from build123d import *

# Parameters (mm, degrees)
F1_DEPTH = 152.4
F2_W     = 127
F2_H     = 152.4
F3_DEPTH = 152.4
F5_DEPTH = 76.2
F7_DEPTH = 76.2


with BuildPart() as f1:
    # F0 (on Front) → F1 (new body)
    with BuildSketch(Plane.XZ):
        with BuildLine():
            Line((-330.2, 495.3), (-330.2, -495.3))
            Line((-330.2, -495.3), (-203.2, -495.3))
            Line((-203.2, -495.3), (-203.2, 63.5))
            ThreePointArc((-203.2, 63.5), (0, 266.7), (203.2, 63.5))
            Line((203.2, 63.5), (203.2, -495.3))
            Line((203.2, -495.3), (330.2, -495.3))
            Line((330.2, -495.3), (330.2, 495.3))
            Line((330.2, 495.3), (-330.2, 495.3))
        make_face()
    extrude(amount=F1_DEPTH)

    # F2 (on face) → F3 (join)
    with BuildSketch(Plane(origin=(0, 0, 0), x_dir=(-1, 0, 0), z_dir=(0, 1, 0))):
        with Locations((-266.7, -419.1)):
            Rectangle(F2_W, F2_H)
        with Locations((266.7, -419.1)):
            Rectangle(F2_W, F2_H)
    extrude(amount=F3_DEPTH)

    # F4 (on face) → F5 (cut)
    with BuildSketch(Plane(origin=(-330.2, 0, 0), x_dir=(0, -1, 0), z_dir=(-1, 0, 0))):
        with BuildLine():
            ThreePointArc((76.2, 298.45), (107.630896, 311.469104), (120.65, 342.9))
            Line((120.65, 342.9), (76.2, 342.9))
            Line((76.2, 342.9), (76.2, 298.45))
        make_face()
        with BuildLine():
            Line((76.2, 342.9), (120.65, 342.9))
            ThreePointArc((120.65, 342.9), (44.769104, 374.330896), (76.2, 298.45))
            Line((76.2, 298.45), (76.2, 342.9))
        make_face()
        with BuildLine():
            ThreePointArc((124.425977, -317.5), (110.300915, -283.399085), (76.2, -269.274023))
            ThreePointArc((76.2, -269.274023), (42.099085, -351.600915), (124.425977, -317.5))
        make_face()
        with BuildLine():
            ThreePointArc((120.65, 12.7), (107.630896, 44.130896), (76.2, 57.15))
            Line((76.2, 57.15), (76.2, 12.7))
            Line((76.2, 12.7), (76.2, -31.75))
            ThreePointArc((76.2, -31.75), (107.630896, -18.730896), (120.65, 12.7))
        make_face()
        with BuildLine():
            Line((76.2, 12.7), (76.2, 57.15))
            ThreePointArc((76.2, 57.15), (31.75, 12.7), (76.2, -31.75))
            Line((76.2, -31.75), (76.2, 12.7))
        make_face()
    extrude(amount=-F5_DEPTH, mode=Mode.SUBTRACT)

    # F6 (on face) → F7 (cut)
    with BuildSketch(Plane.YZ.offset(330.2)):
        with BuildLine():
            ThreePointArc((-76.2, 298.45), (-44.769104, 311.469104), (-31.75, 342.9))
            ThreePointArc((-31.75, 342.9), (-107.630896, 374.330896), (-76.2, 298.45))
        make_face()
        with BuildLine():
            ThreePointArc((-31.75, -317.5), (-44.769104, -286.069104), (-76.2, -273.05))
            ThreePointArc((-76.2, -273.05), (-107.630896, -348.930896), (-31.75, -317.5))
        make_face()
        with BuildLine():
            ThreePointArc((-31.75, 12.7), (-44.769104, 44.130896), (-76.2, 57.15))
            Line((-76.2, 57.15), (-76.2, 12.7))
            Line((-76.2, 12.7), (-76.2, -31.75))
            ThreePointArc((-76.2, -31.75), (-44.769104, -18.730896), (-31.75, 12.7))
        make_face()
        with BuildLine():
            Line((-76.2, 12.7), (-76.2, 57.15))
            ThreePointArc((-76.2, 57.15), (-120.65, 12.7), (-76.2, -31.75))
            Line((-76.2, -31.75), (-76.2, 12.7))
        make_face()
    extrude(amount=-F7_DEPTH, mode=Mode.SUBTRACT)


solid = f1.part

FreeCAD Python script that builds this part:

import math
import FreeCAD as App
import Part
import Sketcher

V = App.Vector
Q = App.Units.Quantity

doc = App.newDocument("Part")
body = doc.addObject("PartDesign::Body", "Body")

sketch1 = doc.addObject("Sketcher::SketchObject", "Sketch")
body.addObject(sketch1)
sketch1.AttachmentSupport = (doc.XZ_Plane, [""])
sketch1.MapMode = "FlatFace"
sketch1.addGeometry(Part.LineSegment(V(-330, 495, 0), V(-330, -495, 0)), False)
sketch1.addGeometry(Part.LineSegment(V(-330, -495, 0), V(-203, -495, 0)), False)
sketch1.addGeometry(Part.LineSegment(V(-203, -495, 0), V(-203, 64, 0)), False)
sketch1.addGeometry(Part.ArcOfCircle(Part.Circle(V(0, 64, 0), V(0, 0, 1), 203), math.radians(0), math.radians(180)), False)
sketch1.addGeometry(Part.LineSegment(V(203, 64, 0), V(203, -495, 0)), False)
sketch1.addGeometry(Part.LineSegment(V(203, -495, 0), V(330, -495, 0)), False)
sketch1.addGeometry(Part.LineSegment(V(330, -495, 0), V(330, 495, 0)), False)
sketch1.addGeometry(Part.LineSegment(V(330, 495, 0), V(-330, 495, 0)), False)
sketch1.addConstraint(Sketcher.Constraint("Coincident", 0, 2, 1, 1))
sketch1.addConstraint(Sketcher.Constraint("Coincident", 1, 2, 2, 1))
sketch1.addConstraint(Sketcher.Constraint("Tangent", 2, 2, 3, 2))
sketch1.addConstraint(Sketcher.Constraint("Tangent", 3, 1, 4, 1))
sketch1.addConstraint(Sketcher.Constraint("Coincident", 4, 2, 5, 1))
sketch1.addConstraint(Sketcher.Constraint("Coincident", 5, 2, 6, 1))
sketch1.addConstraint(Sketcher.Constraint("Coincident", 6, 2, 7, 1))
sketch1.addConstraint(Sketcher.Constraint("Coincident", 7, 2, 0, 1))
sketch1.addConstraint(Sketcher.Constraint("Vertical", 0))
sketch1.addConstraint(Sketcher.Constraint("Horizontal", 1))
sketch1.addConstraint(Sketcher.Constraint("Vertical", 2))
sketch1.addConstraint(Sketcher.Constraint("Vertical", 4))
sketch1.addConstraint(Sketcher.Constraint("Horizontal", 5))
sketch1.addConstraint(Sketcher.Constraint("Vertical", 6))
sketch1.addConstraint(Sketcher.Constraint("Horizontal", 7))
sketch1.addConstraint(Sketcher.Constraint("Symmetric", 0, 2, 6, 2, -1, 1))
sketch1.addConstraint(Sketcher.Constraint("Symmetric", 1, 2, 4, 2, -2))
sketch1.addConstraint(Sketcher.Constraint("Radius", 3, Q("8 in")))
sketch1.addConstraint(Sketcher.Constraint("DistanceX", 1, 1, 1, 2, Q("5 in")))
sketch1.addConstraint(Sketcher.Constraint("DistanceY", 0, 2, 0, 1, Q("39 in")))
sketch1.addConstraint(Sketcher.Constraint("DistanceY", 2, 1, 2, 2, Q("22 in")))
pad1 = doc.addObject("PartDesign::Pad", "Pad")
body.addObject(pad1)
pad1.Profile = sketch1
pad1.Length = Q("6 in")

sketch2 = doc.addObject("Sketcher::SketchObject", "Sketch001")
body.addObject(sketch2)
sketch2.AttachmentSupport = (doc.XZ_Plane, [""])
sketch2.MapMode = "FlatFace"
sketch2.addGeometry(Part.LineSegment(V(330, -343, 0), V(330, -495, 0)), False)
sketch2.addGeometry(Part.LineSegment(V(330, -495, 0), V(203, -495, 0)), False)
sketch2.addGeometry(Part.LineSegment(V(203, -495, 0), V(203, -343, 0)), False)
sketch2.addGeometry(Part.LineSegment(V(203, -343, 0), V(330, -343, 0)), False)
sketch2.addGeometry(Part.LineSegment(V(-203, -343, 0), V(-203, -495, 0)), False)
sketch2.addGeometry(Part.LineSegment(V(-203, -495, 0), V(-330, -495, 0)), False)
sketch2.addGeometry(Part.LineSegment(V(-330, -495, 0), V(-330, -343, 0)), False)
sketch2.addGeometry(Part.LineSegment(V(-330, -343, 0), V(-203, -343, 0)), False)
sketch2.addConstraint(Sketcher.Constraint("Coincident", 0, 2, 1, 1))
sketch2.addConstraint(Sketcher.Constraint("Coincident", 1, 2, 2, 1))
sketch2.addConstraint(Sketcher.Constraint("Coincident", 2, 2, 3, 1))
sketch2.addConstraint(Sketcher.Constraint("Coincident", 3, 2, 0, 1))
sketch2.addConstraint(Sketcher.Constraint("Coincident", 4, 2, 5, 1))
sketch2.addConstraint(Sketcher.Constraint("Coincident", 5, 2, 6, 1))
sketch2.addConstraint(Sketcher.Constraint("Coincident", 6, 2, 7, 1))
sketch2.addConstraint(Sketcher.Constraint("Coincident", 7, 2, 4, 1))
sketch2.addConstraint(Sketcher.Constraint("Vertical", 0))
sketch2.addConstraint(Sketcher.Constraint("Horizontal", 1))
sketch2.addConstraint(Sketcher.Constraint("Vertical", 2))
sketch2.addConstraint(Sketcher.Constraint("Horizontal", 3))
sketch2.addConstraint(Sketcher.Constraint("Vertical", 4))
sketch2.addConstraint(Sketcher.Constraint("Horizontal", 5))
sketch2.addConstraint(Sketcher.Constraint("Vertical", 6))
sketch2.addConstraint(Sketcher.Constraint("Horizontal", 7))
sketch2.addConstraint(Sketcher.Constraint("Symmetric", 1, 2, 4, 2, -2))
sketch2.addConstraint(Sketcher.Constraint("Symmetric", 3, 2, 6, 2, -2))
sketch2.addConstraint(Sketcher.Constraint("DistanceX", 1, 2, 1, 1, Q("5 in")))
sketch2.addConstraint(Sketcher.Constraint("DistanceY", 0, 2, 0, 1, Q("6 in")))
sketch2.addConstraint(Sketcher.Constraint("DistanceX", -1, 1, 0, 2, Q("13 in")))
sketch2.addConstraint(Sketcher.Constraint("DistanceY", 0, 2, -1, 1, Q("19.5 in")))
pad2 = doc.addObject("PartDesign::Pad", "Pad001")
body.addObject(pad2)
pad2.Profile = sketch2
pad2.Length = Q("6 in")
pad2.Reversed = True

sketch3 = doc.addObject("Sketcher::SketchObject", "Sketch002")
body.addObject(sketch3)
sketch3.AttachmentSupport = (doc.YZ_Plane, [""])
sketch3.MapMode = "FlatFace"
sketch3.AttachmentOffset = App.Placement(V(0, 0, -13 * 25.4), App.Rotation())
sketch3.addGeometry(Part.ArcOfCircle(Part.Circle(V(-76, 343, 0), V(0, 0, 1), 44), math.radians(-180), math.radians(-90)), False)
sketch3.addGeometry(Part.ArcOfCircle(Part.Circle(V(-76, 343, 0), V(0, 0, 1), 44), math.radians(-90), math.radians(180)), False)
sketch3.addGeometry(Part.ArcOfCircle(Part.Circle(V(-76, -318, 0), V(0, 0, 1), 48), math.radians(90), math.radians(180)), False)
sketch3.addGeometry(Part.ArcOfCircle(Part.Circle(V(-76, -317, 0), V(0, 0, 1), 48), math.radians(-180), math.radians(90)), False)
sketch3.addGeometry(Part.ArcOfCircle(Part.Circle(V(-76, 13, 0), V(0, 0, 1), 44), math.radians(90), math.radians(180)), False)
sketch3.addGeometry(Part.ArcOfCircle(Part.Circle(V(-76, 13, 0), V(0, 0, 1), 44), math.radians(-90), math.radians(90)), False)
sketch3.addGeometry(Part.ArcOfCircle(Part.Circle(V(-76, 13, 0), V(0, 0, 1), 44), math.radians(-180), math.radians(-90)), False)
sketch3.addConstraint(Sketcher.Constraint("Tangent", 0, 1, 1, 2))
sketch3.addConstraint(Sketcher.Constraint("Coincident", 1, 1, 0, 2))
sketch3.addConstraint(Sketcher.Constraint("Tangent", 2, 1, 3, 2))
sketch3.addConstraint(Sketcher.Constraint("Coincident", 3, 1, 2, 2))
sketch3.addConstraint(Sketcher.Constraint("Tangent", 4, 1, 5, 2))
sketch3.addConstraint(Sketcher.Constraint("Tangent", 5, 1, 6, 2))
sketch3.addConstraint(Sketcher.Constraint("Tangent", 6, 1, 4, 2))
sketch3.addConstraint(Sketcher.Constraint("Equal", 1, 4))
sketch3.addConstraint(Sketcher.Constraint("Horizontal", 1, 3, 0, 1))
sketch3.addConstraint(Sketcher.Constraint("Horizontal", 2, 3, 3, 1))
sketch3.addConstraint(Sketcher.Constraint("Horizontal", 5, 3, 6, 1))
sketch3.addConstraint(Sketcher.Constraint("Vertical", 1, 3, 2, 3))
sketch3.addConstraint(Sketcher.Constraint("Vertical", 3, 3, 4, 3))
sketch3.addConstraint(Sketcher.Constraint("Vertical", 6, 3, 1, 1))
sketch3.addConstraint(Sketcher.Constraint("Vertical", 1, 1, 2, 1))
sketch3.addConstraint(Sketcher.Constraint("Vertical", 2, 1, 4, 1))
sketch3.addConstraint(Sketcher.Constraint("Vertical", 4, 1, 5, 1))
sketch3.addConstraint(Sketcher.Constraint("Radius", 0, Q("1.7500001 in")))
sketch3.addConstraint(Sketcher.Constraint("DistanceX", 0, 3, -1, 1, Q("2.9999999 in")))
sketch3.addConstraint(Sketcher.Constraint("DistanceY", 2, 3, 1, 3, Q("26 in")))
sketch3.addConstraint(Sketcher.Constraint("DistanceY", 3, 3, 4, 3, Q("12.9999999 in")))
sketch3.addConstraint(Sketcher.Constraint("DistanceY", -1, 1, 0, 3, Q("13.5000001 in")))
sketch3.addConstraint(Sketcher.Constraint("Radius", 2, Q("48.225978 mm")))
pocket1 = doc.addObject("PartDesign::Pocket", "Pocket")
body.addObject(pocket1)
pocket1.Profile = sketch3
pocket1.Length = Q("3 in")
pocket1.Reversed = True

sketch4 = doc.addObject("Sketcher::SketchObject", "Sketch003")
body.addObject(sketch4)
sketch4.AttachmentSupport = (doc.YZ_Plane, [""])
sketch4.MapMode = "FlatFace"
sketch4.AttachmentOffset = App.Placement(V(0, 0, 13 * 25.4), App.Rotation())
sketch4.addGeometry(Part.ArcOfCircle(Part.Circle(V(-76, 343, 0), V(0, 0, 1), 44), math.radians(-90), math.radians(0)), False)
sketch4.addGeometry(Part.ArcOfCircle(Part.Circle(V(-76, 343, 0), V(0, 0, 1), 44), math.radians(0), math.radians(270)), False)
sketch4.addGeometry(Part.ArcOfCircle(Part.Circle(V(-76, -318, 0), V(0, 0, 1), 44), math.radians(0), math.radians(90)), False)
sketch4.addGeometry(Part.ArcOfCircle(Part.Circle(V(-76, -317, 0), V(0, 0, 1), 44), math.radians(90), math.radians(360)), False)
sketch4.addGeometry(Part.ArcOfCircle(Part.Circle(V(-76, 13, 0), V(0, 0, 1), 44), math.radians(0), math.radians(90)), False)
sketch4.addGeometry(Part.ArcOfCircle(Part.Circle(V(-76, 13, 0), V(0, 0, 1), 44), math.radians(90), math.radians(270)), False)
sketch4.addGeometry(Part.ArcOfCircle(Part.Circle(V(-76, 13, 0), V(0, 0, 1), 44), math.radians(-90), math.radians(0)), False)
sketch4.addConstraint(Sketcher.Constraint("Tangent", 0, 1, 1, 2))
sketch4.addConstraint(Sketcher.Constraint("Coincident", 1, 1, 0, 2))
sketch4.addConstraint(Sketcher.Constraint("Tangent", 2, 1, 3, 2))
sketch4.addConstraint(Sketcher.Constraint("Coincident", 3, 1, 2, 2))
sketch4.addConstraint(Sketcher.Constraint("Tangent", 4, 2, 5, 1))
sketch4.addConstraint(Sketcher.Constraint("Tangent", 5, 2, 6, 1))
sketch4.addConstraint(Sketcher.Constraint("Tangent", 6, 2, 4, 1))
sketch4.addConstraint(Sketcher.Constraint("Equal", 1, 2))
sketch4.addConstraint(Sketcher.Constraint("Equal", 3, 4))
sketch4.addConstraint(Sketcher.Constraint("Horizontal", 0, 3, 1, 1))
sketch4.addConstraint(Sketcher.Constraint("Horizontal", 3, 3, 2, 1))
sketch4.addConstraint(Sketcher.Constraint("Horizontal", 5, 3, 6, 2))
sketch4.addConstraint(Sketcher.Constraint("Vertical", 1, 3, 2, 3))
sketch4.addConstraint(Sketcher.Constraint("Vertical", 3, 3, 4, 3))
sketch4.addConstraint(Sketcher.Constraint("Vertical", 6, 3, 0, 1))
sketch4.addConstraint(Sketcher.Constraint("Vertical", 0, 1, 3, 1))
sketch4.addConstraint(Sketcher.Constraint("Vertical", 3, 1, 4, 2))
sketch4.addConstraint(Sketcher.Constraint("Vertical", 4, 2, 5, 2))
sketch4.addConstraint(Sketcher.Constraint("Radius", 0, Q("1.7500001 in")))
sketch4.addConstraint(Sketcher.Constraint("DistanceX", 0, 3, -1, 1, Q("3.0000001 in")))
sketch4.addConstraint(Sketcher.Constraint("DistanceY", 2, 3, 1, 3, Q("26 in")))
sketch4.addConstraint(Sketcher.Constraint("DistanceY", 3, 3, 4, 3, Q("12.9999999 in")))
sketch4.addConstraint(Sketcher.Constraint("DistanceY", -1, 1, 0, 3, Q("13.5000001 in")))
pocket2 = doc.addObject("PartDesign::Pocket", "Pocket001")
body.addObject(pocket2)
pocket2.Profile = sketch4
pocket2.Length = Q("3 in")

doc.recompute()
